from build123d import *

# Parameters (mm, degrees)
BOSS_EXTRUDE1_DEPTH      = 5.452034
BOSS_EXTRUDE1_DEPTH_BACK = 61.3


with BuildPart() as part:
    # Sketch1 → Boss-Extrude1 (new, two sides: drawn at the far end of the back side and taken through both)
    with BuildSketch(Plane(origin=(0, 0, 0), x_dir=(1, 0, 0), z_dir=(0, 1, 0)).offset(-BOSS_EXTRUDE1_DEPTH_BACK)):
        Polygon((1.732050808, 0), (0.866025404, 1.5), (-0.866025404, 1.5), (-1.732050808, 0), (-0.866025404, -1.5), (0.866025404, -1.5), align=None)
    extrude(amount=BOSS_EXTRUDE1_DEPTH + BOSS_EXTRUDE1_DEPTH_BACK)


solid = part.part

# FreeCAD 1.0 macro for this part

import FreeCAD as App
import Part
import Sketcher

V = App.Vector
Q = App.Units.Quantity


def add_polygon(sketch, points):
    """Adds a closed chain of lines whose ends are joined by coincident constraints."""
    first, n = sketch.GeometryCount, len(points)
    for a, b in zip(points, points[1:] + points[:1]):
        sketch.addGeometry(Part.LineSegment(App.Vector(*a, 0), App.Vector(*b, 0)), False)
    for i in range(n):
        sketch.addConstraint(Sketcher.Constraint("Coincident", first + i, 2, first + (i + 1) % n, 1))

doc = App.newDocument("Part")
body = doc.addObject("PartDesign::Body", "Body")

sketch1 = body.newObject("Sketcher::SketchObject", "Sketch")
sketch1.AttachmentSupport = (doc.getObject("XZ_Plane"), [""])
sketch1.MapMode = "FlatFace"
add_polygon(sketch1, [(1.7, 0), (0.9, -1.5), (-0.9, -1.5), (-1.7, 0), (-0.9, 1.5), (0.9, 1.5)])
sketch1.addConstraint(Sketcher.Constraint("Horizontal", 1))
sketch1.addConstraint(Sketcher.Constraint("Horizontal", 4))
sketch1.addConstraint(Sketcher.Constraint("Symmetric", 0, 2, 3, 2, -1, 1))
sketch1.addConstraint(Sketcher.Constraint("Symmetric", 2, 2, 5, 2, -1, 1))
sketch1.addConstraint(Sketcher.Constraint("PointOnObject", 2, 2, -1))
sketch1.addConstraint(Sketcher.Constraint("Parallel", 2, 5))
sketch1.addConstraint(Sketcher.Constraint("Vertical", 1, 2, 3, 2))
sketch1.addConstraint(Sketcher.Constraint("Angle", 0, Q("-120 deg")))
sketch1.addConstraint(Sketcher.Constraint("DistanceY", 1, 2, 3, 2, 3.0))
sketch1.addConstraint(Sketcher.Constraint("DistanceX", 1, 2, 1, 1, 1.732051))
pad1 = body.newObject("PartDesign::Pad", "Pad")
pad1.Profile = sketch1
pad1.Type = "TwoLengths"
pad1.Length = 5.452034
pad1.Length2 = 61.3
pad1.Reversed = True

doc.recompute()
